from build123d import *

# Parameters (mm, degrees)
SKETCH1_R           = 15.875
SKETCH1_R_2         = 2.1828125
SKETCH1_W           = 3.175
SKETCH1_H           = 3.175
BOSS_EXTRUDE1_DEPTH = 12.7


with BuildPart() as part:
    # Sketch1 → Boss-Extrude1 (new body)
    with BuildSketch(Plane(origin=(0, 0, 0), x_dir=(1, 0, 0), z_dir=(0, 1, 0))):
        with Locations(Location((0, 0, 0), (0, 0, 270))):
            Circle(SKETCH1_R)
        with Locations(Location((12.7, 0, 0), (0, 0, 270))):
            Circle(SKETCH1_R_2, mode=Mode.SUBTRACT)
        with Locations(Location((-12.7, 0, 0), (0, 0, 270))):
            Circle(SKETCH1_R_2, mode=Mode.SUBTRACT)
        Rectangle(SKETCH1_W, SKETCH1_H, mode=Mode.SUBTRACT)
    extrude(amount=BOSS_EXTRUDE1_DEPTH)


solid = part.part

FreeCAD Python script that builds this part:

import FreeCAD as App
import Part
import Sketcher

V = App.Vector
Q = App.Units.Quantity


def add_polygon(sketch, points):
    """Adds a closed chain of lines whose ends are joined by coincident constraints."""
    first, n = sketch.GeometryCount, len(points)
    for a, b in zip(points, points[1:] + points[:1]):
        sketch.addGeometry(Part.LineSegment(App.Vector(*a, 0), App.Vector(*b, 0)), False)
    for i in range(n):
        sketch.addConstraint(Sketcher.Constraint("Coincident", first + i, 2, first + (i + 1) % n, 1))

doc = App.newDocument("Part")
body = doc.addObject("PartDesign::Body", "Body")

# Sketch on XZ plane
sketch1 = body.newObject("Sketcher::SketchObject", "Sketch")
sketch1.AttachmentSupport = (doc.getObject("XZ_Plane"), [""])
sketch1.MapMode = "FlatFace"
sketch1.addGeometry(Part.Circle(V(0, 0, 0), V(0, 0, 1), 15.875), False)  # 0
sketch1.addGeometry(Part.Circle(V(-12.7, 0, 0), V(0, 0, 1), 2.182812), False)  # 1
sketch1.addGeometry(Part.Circle(V(12.7, 0, 0), V(0, 0, 1), 2.182812), False)  # 2
add_polygon(sketch1, [(1.5875, 1.5875), (-1.5875, 1.5875), (-1.5875, -1.5875), (1.5875, -1.5875)])  # lines 3-6
sketch1.addConstraint(Sketcher.Constraint("Horizontal", 3))
sketch1.addConstraint(Sketcher.Constraint("Vertical", 4))
sketch1.addConstraint(Sketcher.Constraint("Horizontal", 5))
sketch1.addConstraint(Sketcher.Constraint("Vertical", 6))
sketch1.addConstraint(Sketcher.Constraint("Coincident", 0, 3, -1, 1))
sketch1.addConstraint(Sketcher.Constraint("Equal", 1, 2))
sketch1.addConstraint(Sketcher.Constraint("Symmetric", 1, 3, 2, 3, -1, 1))
sketch1.addConstraint(Sketcher.Constraint("Symmetric", 3, 2, 5, 2, -1, 1))
sketch1.addConstraint(Sketcher.Constraint("PointOnObject", 1, 3, -1))
sketch1.addConstraint(Sketcher.Constraint("Equal", 5, 4))
sketch1.addConstraint(Sketcher.Constraint("Diameter", 0, Q("1.25 in")))
sketch1.addConstraint(Sketcher.Constraint("Diameter", 1, Q("0.171875 in")))
sketch1.addConstraint(Sketcher.Constraint("DistanceX", 1, 3, 2, 3, Q("1 in")))
sketch1.addConstraint(Sketcher.Constraint("DistanceX", 3, 2, 3, 1, Q("0.125 in")))
pad1 = body.newObject("PartDesign::Pad", "Pad")
pad1.Profile = sketch1
pad1.Length = Q("0.5 in")
pad1.Reversed = True

doc.recompute()
